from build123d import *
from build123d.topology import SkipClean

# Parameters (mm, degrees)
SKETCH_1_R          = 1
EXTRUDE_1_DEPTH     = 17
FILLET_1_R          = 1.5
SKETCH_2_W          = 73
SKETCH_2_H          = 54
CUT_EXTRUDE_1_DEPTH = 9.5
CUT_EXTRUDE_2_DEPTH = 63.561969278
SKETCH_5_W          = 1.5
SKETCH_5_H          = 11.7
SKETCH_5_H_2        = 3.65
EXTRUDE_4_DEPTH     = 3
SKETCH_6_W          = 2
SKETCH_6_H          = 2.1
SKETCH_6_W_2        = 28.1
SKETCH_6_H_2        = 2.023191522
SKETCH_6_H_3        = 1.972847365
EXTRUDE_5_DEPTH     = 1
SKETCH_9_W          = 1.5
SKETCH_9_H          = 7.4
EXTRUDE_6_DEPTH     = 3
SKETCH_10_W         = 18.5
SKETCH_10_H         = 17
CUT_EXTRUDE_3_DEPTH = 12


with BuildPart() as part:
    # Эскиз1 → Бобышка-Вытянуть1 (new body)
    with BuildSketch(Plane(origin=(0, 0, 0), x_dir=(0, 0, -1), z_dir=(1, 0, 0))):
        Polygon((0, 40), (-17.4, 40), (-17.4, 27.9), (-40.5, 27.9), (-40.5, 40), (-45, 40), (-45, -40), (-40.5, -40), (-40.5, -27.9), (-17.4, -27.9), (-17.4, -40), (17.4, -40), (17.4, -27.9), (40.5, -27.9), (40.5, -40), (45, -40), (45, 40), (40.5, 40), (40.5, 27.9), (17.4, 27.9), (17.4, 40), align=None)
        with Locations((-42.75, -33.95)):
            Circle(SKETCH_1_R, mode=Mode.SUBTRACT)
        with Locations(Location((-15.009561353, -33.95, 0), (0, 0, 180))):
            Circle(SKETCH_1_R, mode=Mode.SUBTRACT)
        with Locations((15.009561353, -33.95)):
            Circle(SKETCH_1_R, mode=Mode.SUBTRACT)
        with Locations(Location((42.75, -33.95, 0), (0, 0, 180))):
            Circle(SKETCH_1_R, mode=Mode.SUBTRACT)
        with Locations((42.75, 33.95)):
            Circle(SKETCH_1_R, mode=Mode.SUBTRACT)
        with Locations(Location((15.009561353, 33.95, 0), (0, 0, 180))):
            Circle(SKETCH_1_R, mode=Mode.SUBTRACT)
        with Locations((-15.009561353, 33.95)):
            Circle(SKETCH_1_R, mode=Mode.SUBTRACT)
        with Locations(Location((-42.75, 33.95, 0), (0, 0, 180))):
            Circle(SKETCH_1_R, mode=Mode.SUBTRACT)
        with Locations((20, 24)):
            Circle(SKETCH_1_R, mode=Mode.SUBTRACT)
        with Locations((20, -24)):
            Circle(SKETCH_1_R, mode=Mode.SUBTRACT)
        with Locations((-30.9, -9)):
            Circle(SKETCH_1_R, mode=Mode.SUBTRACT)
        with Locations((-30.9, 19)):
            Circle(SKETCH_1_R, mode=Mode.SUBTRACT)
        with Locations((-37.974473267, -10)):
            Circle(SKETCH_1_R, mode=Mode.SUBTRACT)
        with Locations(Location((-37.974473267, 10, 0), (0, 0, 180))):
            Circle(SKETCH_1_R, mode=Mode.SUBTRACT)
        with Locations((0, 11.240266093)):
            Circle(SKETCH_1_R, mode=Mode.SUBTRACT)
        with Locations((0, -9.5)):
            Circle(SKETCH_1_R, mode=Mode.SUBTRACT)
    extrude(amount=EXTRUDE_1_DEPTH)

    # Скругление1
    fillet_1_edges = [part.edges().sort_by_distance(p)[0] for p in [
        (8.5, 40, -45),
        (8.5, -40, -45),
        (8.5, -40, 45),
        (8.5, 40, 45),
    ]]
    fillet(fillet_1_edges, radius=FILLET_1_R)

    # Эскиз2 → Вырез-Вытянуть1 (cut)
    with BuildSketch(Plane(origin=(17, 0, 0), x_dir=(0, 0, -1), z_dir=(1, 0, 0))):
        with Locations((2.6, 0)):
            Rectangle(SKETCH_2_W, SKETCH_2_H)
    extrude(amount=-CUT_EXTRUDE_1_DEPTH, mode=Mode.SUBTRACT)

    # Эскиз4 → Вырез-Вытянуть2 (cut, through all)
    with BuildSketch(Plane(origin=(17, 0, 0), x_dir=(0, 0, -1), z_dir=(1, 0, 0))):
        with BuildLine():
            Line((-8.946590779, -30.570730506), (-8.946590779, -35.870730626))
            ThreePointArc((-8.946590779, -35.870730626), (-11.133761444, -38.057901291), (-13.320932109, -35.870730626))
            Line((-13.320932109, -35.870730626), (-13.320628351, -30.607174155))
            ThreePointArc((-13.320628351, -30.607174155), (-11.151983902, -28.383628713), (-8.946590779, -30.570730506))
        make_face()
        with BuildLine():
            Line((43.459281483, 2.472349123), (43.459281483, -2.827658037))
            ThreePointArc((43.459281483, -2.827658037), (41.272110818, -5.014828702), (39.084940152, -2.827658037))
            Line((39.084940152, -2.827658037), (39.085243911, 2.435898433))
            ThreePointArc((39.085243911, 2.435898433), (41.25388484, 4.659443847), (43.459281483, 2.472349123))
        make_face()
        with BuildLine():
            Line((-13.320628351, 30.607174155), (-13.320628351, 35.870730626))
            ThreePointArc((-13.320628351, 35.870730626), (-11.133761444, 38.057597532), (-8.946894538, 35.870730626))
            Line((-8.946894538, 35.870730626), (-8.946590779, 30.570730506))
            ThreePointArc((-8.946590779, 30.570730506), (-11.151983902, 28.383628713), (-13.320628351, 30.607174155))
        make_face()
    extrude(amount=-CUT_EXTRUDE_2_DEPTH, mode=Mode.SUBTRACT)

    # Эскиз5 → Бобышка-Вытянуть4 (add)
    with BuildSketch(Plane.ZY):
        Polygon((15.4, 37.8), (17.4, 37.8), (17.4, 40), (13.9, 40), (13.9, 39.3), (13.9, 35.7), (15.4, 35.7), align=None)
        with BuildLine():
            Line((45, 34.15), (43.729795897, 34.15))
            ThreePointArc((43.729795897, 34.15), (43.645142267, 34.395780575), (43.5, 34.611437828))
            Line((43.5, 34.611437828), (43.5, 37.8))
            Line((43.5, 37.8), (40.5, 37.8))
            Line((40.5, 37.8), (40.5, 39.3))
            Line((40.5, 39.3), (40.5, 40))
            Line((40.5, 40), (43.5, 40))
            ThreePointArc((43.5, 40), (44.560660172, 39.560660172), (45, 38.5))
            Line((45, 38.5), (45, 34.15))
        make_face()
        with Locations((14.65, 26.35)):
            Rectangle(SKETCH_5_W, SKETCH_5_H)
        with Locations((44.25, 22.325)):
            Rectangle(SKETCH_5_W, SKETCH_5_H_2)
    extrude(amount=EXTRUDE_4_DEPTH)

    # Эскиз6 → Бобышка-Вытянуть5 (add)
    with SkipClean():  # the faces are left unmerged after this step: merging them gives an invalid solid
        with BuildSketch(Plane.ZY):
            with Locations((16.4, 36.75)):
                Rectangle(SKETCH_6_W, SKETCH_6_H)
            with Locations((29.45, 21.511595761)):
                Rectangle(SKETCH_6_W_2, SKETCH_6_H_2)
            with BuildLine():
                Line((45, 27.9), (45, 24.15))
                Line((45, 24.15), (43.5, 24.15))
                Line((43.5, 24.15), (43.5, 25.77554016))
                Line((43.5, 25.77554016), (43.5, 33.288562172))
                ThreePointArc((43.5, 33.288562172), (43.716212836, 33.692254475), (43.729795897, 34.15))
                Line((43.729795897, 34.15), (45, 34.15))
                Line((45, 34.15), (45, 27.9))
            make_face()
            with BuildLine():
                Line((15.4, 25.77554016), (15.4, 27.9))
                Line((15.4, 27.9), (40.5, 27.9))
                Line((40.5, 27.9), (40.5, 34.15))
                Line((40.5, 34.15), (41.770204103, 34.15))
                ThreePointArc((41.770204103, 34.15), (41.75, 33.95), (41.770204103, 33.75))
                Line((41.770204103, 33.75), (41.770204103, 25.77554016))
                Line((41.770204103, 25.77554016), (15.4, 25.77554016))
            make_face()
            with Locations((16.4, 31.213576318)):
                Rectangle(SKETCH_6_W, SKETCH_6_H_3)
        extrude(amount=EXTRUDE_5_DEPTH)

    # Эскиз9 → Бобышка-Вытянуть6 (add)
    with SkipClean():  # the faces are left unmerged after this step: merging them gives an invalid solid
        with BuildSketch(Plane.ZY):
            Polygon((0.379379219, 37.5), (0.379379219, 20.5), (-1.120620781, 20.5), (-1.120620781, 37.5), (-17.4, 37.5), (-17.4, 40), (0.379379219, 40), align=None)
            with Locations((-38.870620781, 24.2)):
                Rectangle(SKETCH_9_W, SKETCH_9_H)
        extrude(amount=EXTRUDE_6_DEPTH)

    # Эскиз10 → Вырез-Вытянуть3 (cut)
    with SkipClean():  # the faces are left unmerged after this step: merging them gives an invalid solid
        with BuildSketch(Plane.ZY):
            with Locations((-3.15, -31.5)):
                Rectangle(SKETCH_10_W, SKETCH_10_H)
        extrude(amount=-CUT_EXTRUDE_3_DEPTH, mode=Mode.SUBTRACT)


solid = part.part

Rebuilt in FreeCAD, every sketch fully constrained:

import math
import FreeCAD as App
import Part
import Sketcher

V = App.Vector


def edges_at(feature, points):
    """Names of the edges that pass closest to the given points."""
    edges = feature.Shape.Edges
    near = lambda p: min(range(len(edges)), key=lambda i: edges[i].distToShape(Part.Vertex(*p))[0])
    return sorted({f"Edge{near(p) + 1}" for p in points})

doc = App.newDocument("Part")
body = doc.addObject("PartDesign::Body", "Body")

sketch1 = body.newObject("Sketcher::SketchObject", "Sketch")
sketch1.AttachmentSupport = (doc.getObject("YZ_Plane"), [""])
sketch1.MapMode = "FlatFace"
sketch1.addGeometry(Part.LineSegment(V(40, 17.4, 0), V(27.9, 17.4, 0)), False)
sketch1.addGeometry(Part.LineSegment(V(27.9, 17.4, 0), V(27.9, 40.5, 0)), False)
sketch1.addGeometry(Part.LineSegment(V(27.9, 40.5, 0), V(40, 40.5, 0)), False)
sketch1.addGeometry(Part.LineSegment(V(40, 40.5, 0), V(40, 45, 0)), False)
sketch1.addGeometry(Part.LineSegment(V(40, 45, 0), V(-40, 45, 0)), False)
sketch1.addGeometry(Part.LineSegment(V(-40, 45, 0), V(-40, 40.5, 0)), False)
sketch1.addGeometry(Part.LineSegment(V(-40, 40.5, 0), V(-27.9, 40.5, 0)), False)
sketch1.addGeometry(Part.LineSegment(V(-27.9, 40.5, 0), V(-27.9, 17.4, 0)), False)
sketch1.addGeometry(Part.LineSegment(V(-27.9, 17.4, 0), V(-40, 17.4, 0)), False)
sketch1.addGeometry(Part.LineSegment(V(-40, 17.4, 0), V(-40, -17.4, 0)), False)
sketch1.addGeometry(Part.LineSegment(V(-40, -17.4, 0), V(-27.9, -17.4, 0)), False)
sketch1.addGeometry(Part.LineSegment(V(-27.9, -17.4, 0), V(-27.9, -40.5, 0)), False)
sketch1.addGeometry(Part.LineSegment(V(-27.9, -40.5, 0), V(-40, -40.5, 0)), False)
sketch1.addGeometry(Part.LineSegment(V(-40, -40.5, 0), V(-40, -45, 0)), False)
sketch1.addGeometry(Part.LineSegment(V(-40, -45, 0), V(40, -45, 0)), False)
sketch1.addGeometry(Part.LineSegment(V(40, -45, 0), V(40, -40.5, 0)), False)
sketch1.addGeometry(Part.LineSegment(V(40, -40.5, 0), V(27.9, -40.5, 0)), False)
sketch1.addGeometry(Part.LineSegment(V(27.9, -40.5, 0), V(27.9, -17.4, 0)), False)
sketch1.addGeometry(Part.LineSegment(V(27.9, -17.4, 0), V(40, -17.4, 0)), False)
sketch1.addGeometry(Part.LineSegment(V(40, -17.4, 0), V(40, 17.4, 0)), False)
sketch1.addGeometry(Part.Circle(V(-34, 42.8, 0), V(0, 0, 1), 1), False)
sketch1.addGeometry(Part.Circle(V(-34, 15, 0), V(0, 0, 1), 1), False)
sketch1.addGeometry(Part.Circle(V(-10, 38, 0), V(0, 0, 1), 1), False)
sketch1.addGeometry(Part.Circle(V(-9, 30.9, 0), V(0, 0, 1), 1), False)
sketch1.addGeometry(Part.Circle(V(-34, -15, 0), V(0, 0, 1), 1), False)
sketch1.addGeometry(Part.Circle(V(-24, -20, 0), V(0, 0, 1), 1), False)
sketch1.addGeometry(Part.Circle(V(-34, -42.8, 0), V(0, 0, 1), 1), False)
sketch1.addGeometry(Part.Circle(V(-9.5, 0, 0), V(0, 0, 1), 1), False)
sketch1.addGeometry(Part.Circle(V(10, 38, 0), V(0, 0, 1), 1), False)
sketch1.addGeometry(Part.Circle(V(19, 30.9, 0), V(0, 0, 1), 1), False)
sketch1.addGeometry(Part.Circle(V(34, 42.8, 0), V(0, 0, 1), 1), False)
sketch1.addGeometry(Part.Circle(V(34, 15, 0), V(0, 0, 1), 1), False)
sketch1.addGeometry(Part.Circle(V(11.2, 0, 0), V(0, 0, 1), 1), False)
sketch1.addGeometry(Part.Circle(V(24, -20, 0), V(0, 0, 1), 1), False)
sketch1.addGeometry(Part.Circle(V(34, -15, 0), V(0, 0, 1), 1), False)
sketch1.addGeometry(Part.Circle(V(34, -42.8, 0), V(0, 0, 1), 1), False)
sketch1.addConstraint(Sketcher.Constraint("Coincident", 0, 2, 1, 1))
sketch1.addConstraint(Sketcher.Constraint("Coincident", 1, 2, 2, 1))
sketch1.addConstraint(Sketcher.Constraint("Coincident", 2, 2, 3, 1))
sketch1.addConstraint(Sketcher.Constraint("Coincident", 3, 2, 4, 1))
sketch1.addConstraint(Sketcher.Constraint("Coincident", 4, 2, 5, 1))
sketch1.addConstraint(Sketcher.Constraint("Coincident", 5, 2, 6, 1))
sketch1.addConstraint(Sketcher.Constraint("Coincident", 6, 2, 7, 1))
sketch1.addConstraint(Sketcher.Constraint("Coincident", 7, 2, 8, 1))
sketch1.addConstraint(Sketcher.Constraint("Coincident", 8, 2, 9, 1))
sketch1.addConstraint(Sketcher.Constraint("Coincident", 9, 2, 10, 1))
sketch1.addConstraint(Sketcher.Constraint("Coincident", 10, 2, 11, 1))
sketch1.addConstraint(Sketcher.Constraint("Coincident", 11, 2, 12, 1))
sketch1.addConstraint(Sketcher.Constraint("Coincident", 12, 2, 13, 1))
sketch1.addConstraint(Sketcher.Constraint("Coincident", 13, 2, 14, 1))
sketch1.addConstraint(Sketcher.Constraint("Coincident", 14, 2, 15, 1))
sketch1.addConstraint(Sketcher.Constraint("Coincident", 15, 2, 16, 1))
sketch1.addConstraint(Sketcher.Constraint("Coincident", 16, 2, 17, 1))
sketch1.addConstraint(Sketcher.Constraint("Coincident", 17, 2, 18, 1))
sketch1.addConstraint(Sketcher.Constraint("Coincident", 18, 2, 19, 1))
sketch1.addConstraint(Sketcher.Constraint("Coincident", 19, 2, 0, 1))
sketch1.addConstraint(Sketcher.Constraint("Horizontal", 0))
sketch1.addConstraint(Sketcher.Constraint("Vertical", 1))
sketch1.addConstraint(Sketcher.Constraint("Horizontal", 2))
sketch1.addConstraint(Sketcher.Constraint("Vertical", 3))
sketch1.addConstraint(Sketcher.Constraint("Horizontal", 4))
sketch1.addConstraint(Sketcher.Constraint("Vertical", 5))
sketch1.addConstraint(Sketcher.Constraint("Horizontal", 6))
sketch1.addConstraint(Sketcher.Constraint("Vertical", 7))
sketch1.addConstraint(Sketcher.Constraint("Horizontal", 8))
sketch1.addConstraint(Sketcher.Constraint("Vertical", 9))
sketch1.addConstraint(Sketcher.Constraint("Horizontal", 10))
sketch1.addConstraint(Sketcher.Constraint("Vertical", 11))
sketch1.addConstraint(Sketcher.Constraint("Horizontal", 12))
sketch1.addConstraint(Sketcher.Constraint("Vertical", 13))
sketch1.addConstraint(Sketcher.Constraint("Horizontal", 14))
sketch1.addConstraint(Sketcher.Constraint("Vertical", 15))
sketch1.addConstraint(Sketcher.Constraint("Horizontal", 16))
sketch1.addConstraint(Sketcher.Constraint("Vertical", 17))
sketch1.addConstraint(Sketcher.Constraint("Horizontal", 18))
sketch1.addConstraint(Sketcher.Constraint("Vertical", 19))
sketch1.addConstraint(Sketcher.Constraint("Equal", 20, 21))
sketch1.addConstraint(Sketcher.Constraint("Equal", 21, 22))
sketch1.addConstraint(Sketcher.Constraint("Equal", 22, 23))
sketch1.addConstraint(Sketcher.Constraint("Equal", 23, 24))
sketch1.addConstraint(Sketcher.Constraint("Equal", 24, 25))
sketch1.addConstraint(Sketcher.Constraint("Equal", 25, 26))
sketch1.addConstraint(Sketcher.Constraint("Equal", 26, 27))
sketch1.addConstraint(Sketcher.Constraint("Equal", 27, 28))
sketch1.addConstraint(Sketcher.Constraint("Equal", 28, 29))
sketch1.addConstraint(Sketcher.Constraint("Equal", 29, 30))
sketch1.addConstraint(Sketcher.Constraint("Equal", 30, 31))
sketch1.addConstraint(Sketcher.Constraint("Equal", 31, 32))
sketch1.addConstraint(Sketcher.Constraint("Equal", 32, 33))
sketch1.addConstraint(Sketcher.Constraint("Equal", 33, 34))
sketch1.addConstraint(Sketcher.Constraint("Equal", 34, 35))
sketch1.addConstraint(Sketcher.Constraint("Symmetric", 26, 3, 30, 3, -1, 1))
sketch1.addConstraint(Sketcher.Constraint("Symmetric", 24, 3, 31, 3, -1, 1))
sketch1.addConstraint(Sketcher.Constraint("Symmetric", 21, 3, 34, 3, -1, 1))
sketch1.addConstraint(Sketcher.Constraint("Symmetric", 20, 3, 35, 3, -1, 1))
sketch1.addConstraint(Sketcher.Constraint("Symmetric", 0, 2, 10, 2, -1, 1))
sketch1.addConstraint(Sketcher.Constraint("Symmetric", 2, 2, 12, 2, -1, 1))
sketch1.addConstraint(Sketcher.Constraint("Symmetric", 4, 2, 14, 2, -1, 1))
sketch1.addConstraint(Sketcher.Constraint("Symmetric", 6, 2, 16, 2, -1, 1))
sketch1.addConstraint(Sketcher.Constraint("Symmetric", 8, 2, 18, 2, -1, 1))
sketch1.addConstraint(Sketcher.Constraint("Symmetric", 22, 3, 28, 3, -2))
sketch1.addConstraint(Sketcher.Constraint("Symmetric", 20, 3, 30, 3, -2))
sketch1.addConstraint(Sketcher.Constraint("Symmetric", 21, 3, 31, 3, -2))
sketch1.addConstraint(Sketcher.Constraint("Symmetric", 25, 3, 33, 3, -2))
sketch1.addConstraint(Sketcher.Constraint("Symmetric", 2, 2, 5, 2, -2))
sketch1.addConstraint(Sketcher.Constraint("Symmetric", 0, 2, 7, 2, -2))
sketch1.addConstraint(Sketcher.Constraint("PointOnObject", 27, 3, -1))
sketch1.addConstraint(Sketcher.Constraint("PointOnObject", 32, 3, -1))
sketch1.addConstraint(Sketcher.Constraint("Horizontal", 23, 3, 29, 3))
sketch1.addConstraint(Sketcher.Constraint("Vertical", 20, 3, 21, 3))
sketch1.addConstraint(Sketcher.Constraint("Vertical", 5, 2, 8, 2))
sketch1.addConstraint(Sketcher.Constraint("Diameter", 20, 2.0))
sketch1.addConstraint(Sketcher.Constraint("DistanceX", 4, 2, 4, 1, 80.0))
sketch1.addConstraint(Sketcher.Constraint("DistanceX", 0, 2, 0, 1, 12.1))
sketch1.addConstraint(Sketcher.Constraint("DistanceY", 1, 1, 1, 2, 23.1))
sketch1.addConstraint(Sketcher.Constraint("DistanceY", 3, 1, 3, 2, 4.5))
sketch1.addConstraint(Sketcher.Constraint("DistanceY", 9, 2, 9, 1, 34.8))
sketch1.addConstraint(Sketcher.Constraint("DistanceX", 22, 3, -1, 1, 10.0))
sketch1.addConstraint(Sketcher.Constraint("DistanceX", 23, 3, -1, 1, 9.0))
sketch1.addConstraint(Sketcher.Constraint("DistanceX", 25, 3, -1, 1, 24.0))
sketch1.addConstraint(Sketcher.Constraint("DistanceY", 25, 3, -1, 1, 20.0))
sketch1.addConstraint(Sketcher.Constraint("DistanceX", -1, 1, 29, 3, 19.0))
sketch1.addConstraint(Sketcher.Constraint("DistanceY", -1, 1, 23, 3, 30.9))
sketch1.addConstraint(Sketcher.Constraint("DistanceX", 27, 3, -1, 1, 9.5))
sketch1.addConstraint(Sketcher.Constraint("DistanceX", 20, 3, -1, 1, 33.95))
sketch1.addConstraint(Sketcher.Constraint("DistanceY", -1, 1, 20, 3, 42.75))
sketch1.addConstraint(Sketcher.Constraint("DistanceY", -1, 1, 21, 3, 15.009561))
sketch1.addConstraint(Sketcher.Constraint("DistanceY", 21, 3, 22, 3, 22.964912))
sketch1.addConstraint(Sketcher.Constraint("DistanceX", -1, 1, 32, 3, 11.240266))
pad1 = body.newObject("PartDesign::Pad", "Pad")
pad1.Profile = sketch1
pad1.Length = 17
doc.recompute()

fillet = body.newObject("PartDesign::Fillet", "Fillet")
fillet.Base = (pad1, edges_at(pad1, [
    (8.5, 40, -45),
    (8.5, -40, -45),
    (8.5, -40, 45),
    (8.5, 40, 45),
]))
fillet.Radius = 1.5

sketch2 = body.newObject("Sketcher::SketchObject", "Sketch001")
sketch2.AttachmentSupport = (doc.getObject("YZ_Plane"), [""])
sketch2.MapMode = "FlatFace"
sketch2.AttachmentOffset = App.Placement(V(0, 0, 17), App.Rotation())
sketch2.addGeometry(Part.LineSegment(V(27, 34, 0), V(-27, 34, 0)), False)
sketch2.addGeometry(Part.LineSegment(V(-27, 34, 0), V(-27, -39, 0)), False)
sketch2.addGeometry(Part.LineSegment(V(-27, -39, 0), V(27, -39, 0)), False)
sketch2.addGeometry(Part.LineSegment(V(27, -39, 0), V(27, 34, 0)), False)
sketch2.addConstraint(Sketcher.Constraint("Coincident", 0, 2, 1, 1))
sketch2.addConstraint(Sketcher.Constraint("Coincident", 1, 2, 2, 1))
sketch2.addConstraint(Sketcher.Constraint("Coincident", 2, 2, 3, 1))
sketch2.addConstraint(Sketcher.Constraint("Coincident", 3, 2, 0, 1))
sketch2.addConstraint(Sketcher.Constraint("Horizontal", 0))
sketch2.addConstraint(Sketcher.Constraint("Vertical", 1))
sketch2.addConstraint(Sketcher.Constraint("Horizontal", 2))
sketch2.addConstraint(Sketcher.Constraint("Vertical", 3))
sketch2.addConstraint(Sketcher.Constraint("DistanceX", 0, 2, 0, 1, 54.0))
sketch2.addConstraint(Sketcher.Constraint("DistanceY", 1, 2, 1, 1, 73.0))
sketch2.addConstraint(Sketcher.Constraint("DistanceX", 0, 2, -1, 1, 27.0))
sketch2.addConstraint(Sketcher.Constraint("DistanceY", -1, 1, 0, 2, 33.9))
pocket1 = body.newObject("PartDesign::Pocket", "Pocket")
pocket1.Profile = sketch2
pocket1.Length = 9.5

sketch3 = body.newObject("Sketcher::SketchObject", "Sketch002")
sketch3.AttachmentSupport = (doc.getObject("YZ_Plane"), [""])
sketch3.MapMode = "FlatFace"
sketch3.AttachmentOffset = App.Placement(V(0, 0, 17), App.Rotation())
sketch3.addGeometry(Part.LineSegment(V(-35.9, 8.9, 0), V(-30.6, 8.9, 0)), False)
sketch3.addGeometry(Part.ArcOfCircle(Part.Circle(V(-30.6, 11.1, 0), V(0, 0, 1), 2.2), math.radians(-90), math.radians(91)), False)
sketch3.addGeometry(Part.LineSegment(V(-30.6, 13.3, 0), V(-35.9, 13.3, 0)), False)
sketch3.addGeometry(Part.ArcOfCircle(Part.Circle(V(-35.9, 11.1, 0), V(0, 0, 1), 2.2), math.radians(90), math.radians(270)), False)
sketch3.addGeometry(Part.LineSegment(V(-2.8, -43.5, 0), V(2.5, -43.5, 0)), False)
sketch3.addGeometry(Part.ArcOfCircle(Part.Circle(V(2.5, -41.3, 0), V(0, 0, 1), 2.2), math.radians(-90), math.radians(91)), False)
sketch3.addGeometry(Part.LineSegment(V(2.4, -39.1, 0), V(-2.8, -39.1, 0)), False)
sketch3.addGeometry(Part.ArcOfCircle(Part.Circle(V(-2.8, -41.3, 0), V(0, 0, 1), 2.2), math.radians(90), math.radians(270)), False)
sketch3.addGeometry(Part.LineSegment(V(35.9, 13.3, 0), V(30.6, 13.3, 0)), False)
sketch3.addGeometry(Part.ArcOfCircle(Part.Circle(V(30.6, 11.1, 0), V(0, 0, 1), 2.2), math.radians(89), math.radians(270)), False)
sketch3.addGeometry(Part.LineSegment(V(30.6, 8.9, 0), V(35.9, 8.9, 0)), False)
sketch3.addGeometry(Part.ArcOfCircle(Part.Circle(V(35.9, 11.1, 0), V(0, 0, 1), 2.2), math.radians(-90), math.radians(90)), False)
sketch3.addConstraint(Sketcher.Constraint("Coincident", 0, 2, 1, 1))
sketch3.addConstraint(Sketcher.Constraint("Coincident", 1, 2, 2, 1))
sketch3.addConstraint(Sketcher.Constraint("Coincident", 2, 2, 3, 1))
sketch3.addConstraint(Sketcher.Constraint("Tangent", 3, 2, 0, 1))
sketch3.addConstraint(Sketcher.Constraint("Tangent", 4, 2, 5, 1))
sketch3.addConstraint(Sketcher.Constraint("Coincident", 5, 2, 6, 1))
sketch3.addConstraint(Sketcher.Constraint("Coincident", 6, 2, 7, 1))
sketch3.addConstraint(Sketcher.Constraint("Tangent", 7, 2, 4, 1))
sketch3.addConstraint(Sketcher.Constraint("Coincident", 8, 2, 9, 1))
sketch3.addConstraint(Sketcher.Constraint("Coincident", 9, 2, 10, 1))
sketch3.addConstraint(Sketcher.Constraint("Coincident", 10, 2, 11, 1))
sketch3.addConstraint(Sketcher.Constraint("Tangent", 11, 2, 8, 1))
sketch3.addConstraint(Sketcher.Constraint("Horizontal", 0))
sketch3.addConstraint(Sketcher.Constraint("Horizontal", 4))
sketch3.addConstraint(Sketcher.Constraint("Horizontal", 8))
sketch3.addConstraint(Sketcher.Constraint("Equal", 1, 3))
sketch3.addConstraint(Sketcher.Constraint("Equal", 3, 5))
sketch3.addConstraint(Sketcher.Constraint("Equal", 5, 7))
sketch3.addConstraint(Sketcher.Constraint("Equal", 7, 9))
sketch3.addConstraint(Sketcher.Constraint("Symmetric", 1, 3, 9, 3, -2))
sketch3.addConstraint(Sketcher.Constraint("Symmetric", 3, 3, 11, 3, -2))
sketch3.addConstraint(Sketcher.Constraint("Parallel", 2, 6))
sketch3.addConstraint(Sketcher.Constraint("Horizontal", 1, 2, 8, 2))
sketch3.addConstraint(Sketcher.Constraint("Vertical", 3, 3, 2, 2))
sketch3.addConstraint(Sketcher.Constraint("Vertical", 7, 3, 6, 2))
sketch3.addConstraint(Sketcher.Constraint("Vertical", 11, 3, 10, 2))
sketch3.addConstraint(Sketcher.Constraint("Equal", 2, 6))
sketch3.addConstraint(Sketcher.Constraint("DistanceX", 0, 1, 0, 2, 5.3))
sketch3.addConstraint(Sketcher.Constraint("Distance", 10, 5.3))
sketch3.addConstraint(Sketcher.Constraint("Radius", 1, 2.187171))
sketch3.addConstraint(Sketcher.Constraint("Radius", 11, 2.186867))
sketch3.addConstraint(Sketcher.Constraint("DistanceX", -1, 1, 5, 2, 2.435898))
sketch3.addConstraint(Sketcher.Constraint("DistanceY", 7, 3, 0, 2, 50.218702))
sketch3.addConstraint(Sketcher.Constraint("DistanceX", 4, 1, 4, 2, 5.300007))
sketch3.addConstraint(Sketcher.Constraint("DistanceY", -1, 1, 1, 3, 11.133761))
sketch3.addConstraint(Sketcher.Constraint("DistanceX", 3, 3, -1, 1, 35.870731))
pocket2 = body.newObject("PartDesign::Pocket", "Pocket001")
pocket2.Profile = sketch3
pocket2.Type = "ThroughAll"

sketch4 = body.newObject("Sketcher::SketchObject", "Sketch003")
sketch4.AttachmentSupport = (doc.getObject("YZ_Plane"), [""])
sketch4.MapMode = "FlatFace"
sketch4.addGeometry(Part.LineSegment(V(37.8, 15.4, 0), V(37.8, 17.4, 0)), False)
sketch4.addGeometry(Part.LineSegment(V(37.8, 17.4, 0), V(40, 17.4, 0)), False)
sketch4.addGeometry(Part.LineSegment(V(40, 17.4, 0), V(40, 13.9, 0)), False)
sketch4.addGeometry(Part.LineSegment(V(40, 13.9, 0), V(35.7, 13.9, 0)), False)
sketch4.addGeometry(Part.LineSegment(V(35.7, 13.9, 0), V(35.7, 15.4, 0)), False)
sketch4.addGeometry(Part.LineSegment(V(35.7, 15.4, 0), V(37.8, 15.4, 0)), False)
sketch4.addGeometry(Part.LineSegment(V(34.1, 43.7, 0), V(34.1, 45, 0)), False)
sketch4.addGeometry(Part.LineSegment(V(34.1, 45, 0), V(38.5, 45, 0)), False)
sketch4.addGeometry(Part.ArcOfCircle(Part.Circle(V(38.5, 43.5, 0), V(0, 0, 1), 1.5), math.radians(0), math.radians(90)), False)
sketch4.addGeometry(Part.LineSegment(V(40, 43.5, 0), V(40, 40.5, 0)), False)
sketch4.addGeometry(Part.LineSegment(V(40, 40.5, 0), V(37.8, 40.5, 0)), False)
sketch4.addGeometry(Part.LineSegment(V(37.8, 40.5, 0), V(37.8, 43.5, 0)), False)
sketch4.addGeometry(Part.LineSegment(V(37.8, 43.5, 0), V(34.6, 43.5, 0)), False)
sketch4.addGeometry(Part.ArcOfCircle(Part.Circle(V(33.9, 42.7, 0), V(0, 0, 1), 1), math.radians(49), math.radians(78)), False)
sketch4.addGeometry(Part.LineSegment(V(32.2, 13.9, 0), V(20.5, 13.9, 0)), False)
sketch4.addGeometry(Part.LineSegment(V(20.5, 13.9, 0), V(20.5, 15.4, 0)), False)
sketch4.addGeometry(Part.LineSegment(V(20.5, 15.4, 0), V(32.2, 15.4, 0)), False)
sketch4.addGeometry(Part.LineSegment(V(32.2, 15.4, 0), V(32.2, 13.9, 0)), False)
sketch4.addGeometry(Part.LineSegment(V(24.1, 43.5, 0), V(20.5, 43.5, 0)), False)
sketch4.addGeometry(Part.LineSegment(V(20.5, 43.5, 0), V(20.5, 45, 0)), False)
sketch4.addGeometry(Part.LineSegment(V(20.5, 45, 0), V(24.1, 45, 0)), False)
sketch4.addGeometry(Part.LineSegment(V(24.1, 45, 0), V(24.1, 43.5, 0)), False)
sketch4.addConstraint(Sketcher.Constraint("Coincident", 0, 2, 1, 1))
sketch4.addConstraint(Sketcher.Constraint("Coincident", 1, 2, 2, 1))
sketch4.addConstraint(Sketcher.Constraint("Coincident", 2, 2, 3, 1))
sketch4.addConstraint(Sketcher.Constraint("Coincident", 3, 2, 4, 1))
sketch4.addConstraint(Sketcher.Constraint("Coincident", 4, 2, 5, 1))
sketch4.addConstraint(Sketcher.Constraint("Coincident", 5, 2, 0, 1))
sketch4.addConstraint(Sketcher.Constraint("Coincident", 6, 2, 7, 1))
sketch4.addConstraint(Sketcher.Constraint("Tangent", 7, 2, 8, 2))
sketch4.addConstraint(Sketcher.Constraint("Tangent", 8, 1, 9, 1))
sketch4.addConstraint(Sketcher.Constraint("Coincident", 9, 2, 10, 1))
sketch4.addConstraint(Sketcher.Constraint("Coincident", 10, 2, 11, 1))
sketch4.addConstraint(Sketcher.Constraint("Coincident", 11, 2, 12, 1))
sketch4.addConstraint(Sketcher.Constraint("Coincident", 12, 2, 13, 1))
sketch4.addConstraint(Sketcher.Constraint("Coincident", 13, 2, 6, 1))
sketch4.addConstraint(Sketcher.Constraint("Coincident", 14, 2, 15, 1))
sketch4.addConstraint(Sketcher.Constraint("Coincident", 15, 2, 16, 1))
sketch4.addConstraint(Sketcher.Constraint("Coincident", 16, 2, 17, 1))
sketch4.addConstraint(Sketcher.Constraint("Coincident", 17, 2, 14, 1))
sketch4.addConstraint(Sketcher.Constraint("Coincident", 18, 2, 19, 1))
sketch4.addConstraint(Sketcher.Constraint("Coincident", 19, 2, 20, 1))
sketch4.addConstraint(Sketcher.Constraint("Coincident", 20, 2, 21, 1))
sketch4.addConstraint(Sketcher.Constraint("Coincident", 21, 2, 18, 1))
sketch4.addConstraint(Sketcher.Constraint("Vertical", 0))
sketch4.addConstraint(Sketcher.Constraint("Horizontal", 1))
sketch4.addConstraint(Sketcher.Constraint("Vertical", 2))
sketch4.addConstraint(Sketcher.Constraint("Horizontal", 3))
sketch4.addConstraint(Sketcher.Constraint("Vertical", 4))
sketch4.addConstraint(Sketcher.Constraint("Horizontal", 5))
sketch4.addConstraint(Sketcher.Constraint("Vertical", 6))
sketch4.addConstraint(Sketcher.Constraint("Horizontal", 7))
sketch4.addConstraint(Sketcher.Constraint("Vertical", 9))
sketch4.addConstraint(Sketcher.Constraint("Horizontal", 10))
sketch4.addConstraint(Sketcher.Constraint("Vertical", 11))
sketch4.addConstraint(Sketcher.Constraint("Horizontal", 12))
sketch4.addConstraint(Sketcher.Constraint("Horizontal", 14))
sketch4.addConstraint(Sketcher.Constraint("Vertical", 15))
sketch4.addConstraint(Sketcher.Constraint("Horizontal", 16))
sketch4.addConstraint(Sketcher.Constraint("Vertical", 17))
sketch4.addConstraint(Sketcher.Constraint("Horizontal", 18))
sketch4.addConstraint(Sketcher.Constraint("Vertical", 19))
sketch4.addConstraint(Sketcher.Constraint("Horizontal", 20))
sketch4.addConstraint(Sketcher.Constraint("Vertical", 21))
sketch4.addConstraint(Sketcher.Constraint("Horizontal", 8, 1, 11, 2))
sketch4.addConstraint(Sketcher.Constraint("Horizontal", 3, 2, 14, 2))
sketch4.addConstraint(Sketcher.Constraint("Horizontal", 5, 2, 15, 2))
sketch4.addConstraint(Sketcher.Constraint("Horizontal", 12, 2, 18, 2))
sketch4.addConstraint(Sketcher.Constraint("Horizontal", 7, 2, 19, 2))
sketch4.addConstraint(Sketcher.Constraint("Vertical", 2, 2, 8, 1))
sketch4.addConstraint(Sketcher.Constraint("Vertical", 5, 2, 10, 2))
sketch4.addConstraint(Sketcher.Constraint("Vertical", 15, 2, 18, 2))
sketch4.addConstraint(Sketcher.Constraint("Equal", 17, 19))
sketch4.addConstraint(Sketcher.Constraint("Radius", 13, 1.0))
sketch4.addConstraint(Sketcher.Constraint("Radius", 8, 1.5))
sketch4.addConstraint(Sketcher.Constraint("DistanceY", 0, 1, 0, 2, 2.0))
sketch4.addConstraint(Sketcher.Constraint("DistanceY", 9, 2, 9, 1, 3.0))
sketch4.addConstraint(Sketcher.Constraint("DistanceX", 1, 1, 1, 2, 2.2))
sketch4.addConstraint(Sketcher.Constraint("DistanceX", 3, 2, 3, 1, 4.3))
sketch4.addConstraint(Sketcher.Constraint("DistanceX", 14, 2, 14, 1, 11.7))
sketch4.addConstraint(Sketcher.Constraint("DistanceX", -1, 1, 1, 2, 40.0))
sketch4.addConstraint(Sketcher.Constraint("DistanceY", -1, 1, 6, 2, 45.0))
sketch4.addConstraint(Sketcher.Constraint("DistanceX", 20, 2, 6, 2, 10.0))
sketch4.addConstraint(Sketcher.Constraint("DistanceX", 7, 1, 7, 2, 4.35))
sketch4.addConstraint(Sketcher.Constraint("DistanceX", 18, 2, 18, 1, 3.65))
sketch4.addConstraint(Sketcher.Constraint("DistanceY", -1, 1, 0, 2, 17.4))
sketch4.addConstraint(Sketcher.Constraint("DistanceX", 13, 3, 6, 2, 0.2))
sketch4.addConstraint(Sketcher.Constraint("DistanceY", -1, 1, 13, 3, 42.75))
pad2 = body.newObject("PartDesign::Pad", "Pad001")
pad2.Profile = sketch4
pad2.Length = 3
pad2.Reversed = True

sketch5 = body.newObject("Sketcher::SketchObject", "Sketch004")
sketch5.AttachmentSupport = (doc.getObject("YZ_Plane"), [""])
sketch5.MapMode = "FlatFace"
sketch5.addGeometry(Part.LineSegment(V(37.8, 15.4, 0), V(35.7, 15.4, 0)), False)
sketch5.addGeometry(Part.LineSegment(V(35.7, 15.4, 0), V(35.7, 17.4, 0)), False)
sketch5.addGeometry(Part.LineSegment(V(35.7, 17.4, 0), V(37.8, 17.4, 0)), False)
sketch5.addGeometry(Part.LineSegment(V(37.8, 17.4, 0), V(37.8, 15.4, 0)), False)
sketch5.addGeometry(Part.LineSegment(V(22.52, 15.4, 0), V(20.5, 15.4, 0)), False)
sketch5.addGeometry(Part.LineSegment(V(20.5, 15.4, 0), V(20.5, 43.5, 0)), False)
sketch5.addGeometry(Part.LineSegment(V(20.5, 43.5, 0), V(22.52, 43.5, 0)), False)
sketch5.addGeometry(Part.LineSegment(V(22.52, 43.5, 0), V(22.52, 15.4, 0)), False)
sketch5.addGeometry(Part.LineSegment(V(24.15, 45, 0), V(27.9, 45, 0)), False)
sketch5.addGeometry(Part.LineSegment(V(27.9, 45, 0), V(34.15, 45, 0)), False)
sketch5.addGeometry(Part.LineSegment(V(34.15, 45, 0), V(34.15, 43.73, 0)), False)
sketch5.addGeometry(Part.ArcOfCircle(Part.Circle(V(33.95, 42.75, 0), V(0, 0, 1), 1), math.radians(78), math.radians(131)), False)
sketch5.addGeometry(Part.LineSegment(V(33.29, 43.5, 0), V(25.78, 43.5, 0)), False)
sketch5.addGeometry(Part.LineSegment(V(25.78, 43.5, 0), V(24.15, 43.5, 0)), False)
sketch5.addGeometry(Part.LineSegment(V(24.15, 43.5, 0), V(24.15, 45, 0)), False)
sketch5.addGeometry(Part.LineSegment(V(27.9, 15.4, 0), V(25.78, 15.4, 0)), False)
sketch5.addGeometry(Part.LineSegment(V(25.78, 15.4, 0), V(25.78, 41.77, 0)), False)
sketch5.addGeometry(Part.LineSegment(V(25.78, 41.77, 0), V(33.75, 41.77, 0)), False)
sketch5.addGeometry(Part.ArcOfCircle(Part.Circle(V(33.95, 42.75, 0), V(0, 0, 1), 1), math.radians(-102), math.radians(-78)), False)
sketch5.addGeometry(Part.LineSegment(V(34.15, 41.77, 0), V(34.15, 40.5, 0)), False)
sketch5.addGeometry(Part.LineSegment(V(34.15, 40.5, 0), V(27.9, 40.5, 0)), False)
sketch5.addGeometry(Part.LineSegment(V(27.9, 40.5, 0), V(27.9, 15.4, 0)), False)
sketch5.addGeometry(Part.LineSegment(V(32.2, 15.4, 0), V(30.23, 15.4, 0)), False)
sketch5.addGeometry(Part.LineSegment(V(30.23, 15.4, 0), V(30.23, 17.4, 0)), False)
sketch5.addGeometry(Part.LineSegment(V(30.23, 17.4, 0), V(32.2, 17.4, 0)), False)
sketch5.addGeometry(Part.LineSegment(V(32.2, 17.4, 0), V(32.2, 15.4, 0)), False)
sketch5.addConstraint(Sketcher.Constraint("Coincident", 0, 2, 1, 1))
sketch5.addConstraint(Sketcher.Constraint("Coincident", 1, 2, 2, 1))
sketch5.addConstraint(Sketcher.Constraint("Coincident", 2, 2, 3, 1))
sketch5.addConstraint(Sketcher.Constraint("Coincident", 3, 2, 0, 1))
sketch5.addConstraint(Sketcher.Constraint("Coincident", 4, 2, 5, 1))
sketch5.addConstraint(Sketcher.Constraint("Coincident", 5, 2, 6, 1))
sketch5.addConstraint(Sketcher.Constraint("Coincident", 6, 2, 7, 1))
sketch5.addConstraint(Sketcher.Constraint("Coincident", 7, 2, 4, 1))
sketch5.addConstraint(Sketcher.Constraint("Coincident", 8, 2, 9, 1))
sketch5.addConstraint(Sketcher.Constraint("Coincident", 9, 2, 10, 1))
sketch5.addConstraint(Sketcher.Constraint("Coincident", 10, 2, 11, 1))
sketch5.addConstraint(Sketcher.Constraint("Coincident", 11, 2, 12, 1))
sketch5.addConstraint(Sketcher.Constraint("Coincident", 12, 2, 13, 1))
sketch5.addConstraint(Sketcher.Constraint("Coincident", 13, 2, 14, 1))
sketch5.addConstraint(Sketcher.Constraint("Coincident", 14, 2, 8, 1))
sketch5.addConstraint(Sketcher.Constraint("Coincident", 15, 2, 16, 1))
sketch5.addConstraint(Sketcher.Constraint("Coincident", 16, 2, 17, 1))
sketch5.addConstraint(Sketcher.Constraint("Coincident", 17, 2, 18, 1))
sketch5.addConstraint(Sketcher.Constraint("Coincident", 18, 2, 19, 1))
sketch5.addConstraint(Sketcher.Constraint("Coincident", 19, 2, 20, 1))
sketch5.addConstraint(Sketcher.Constraint("Coincident", 20, 2, 21, 1))
sketch5.addConstraint(Sketcher.Constraint("Coincident", 21, 2, 15, 1))
sketch5.addConstraint(Sketcher.Constraint("Coincident", 22, 2, 23, 1))
sketch5.addConstraint(Sketcher.Constraint("Coincident", 23, 2, 24, 1))
sketch5.addConstraint(Sketcher.Constraint("Coincident", 24, 2, 25, 1))
sketch5.addConstraint(Sketcher.Constraint("Coincident", 25, 2, 22, 1))
sketch5.addConstraint(Sketcher.Constraint("Horizontal", 0))
sketch5.addConstraint(Sketcher.Constraint("Vertical", 1))
sketch5.addConstraint(Sketcher.Constraint("Horizontal", 2))
sketch5.addConstraint(Sketcher.Constraint("Vertical", 3))
sketch5.addConstraint(Sketcher.Constraint("Horizontal", 4))
sketch5.addConstraint(Sketcher.Constraint("Vertical", 5))
sketch5.addConstraint(Sketcher.Constraint("Horizontal", 6))
sketch5.addConstraint(Sketcher.Constraint("Vertical", 7))
sketch5.addConstraint(Sketcher.Constraint("Horizontal", 8))
sketch5.addConstraint(Sketcher.Constraint("Horizontal", 9))
sketch5.addConstraint(Sketcher.Constraint("Vertical", 10))
sketch5.addConstraint(Sketcher.Constraint("Horizontal", 12))
sketch5.addConstraint(Sketcher.Constraint("Horizontal", 13))
sketch5.addConstraint(Sketcher.Constraint("Vertical", 14))
sketch5.addConstraint(Sketcher.Constraint("Horizontal", 15))
sketch5.addConstraint(Sketcher.Constraint("Vertical", 16))
sketch5.addConstraint(Sketcher.Constraint("Horizontal", 17))
sketch5.addConstraint(Sketcher.Constraint("Vertical", 19))
sketch5.addConstraint(Sketcher.Constraint("Horizontal", 20))
sketch5.addConstraint(Sketcher.Constraint("Vertical", 21))
sketch5.addConstraint(Sketcher.Constraint("Horizontal", 22))
sketch5.addConstraint(Sketcher.Constraint("Vertical", 23))
sketch5.addConstraint(Sketcher.Constraint("Horizontal", 24))
sketch5.addConstraint(Sketcher.Constraint("Vertical", 25))
sketch5.addConstraint(Sketcher.Constraint("Coincident", 18, 3, 11, 3))
sketch5.addConstraint(Sketcher.Constraint("Equal", 11, 18))
sketch5.addConstraint(Sketcher.Constraint("Horizontal", 3, 2, 4, 2))
sketch5.addConstraint(Sketcher.Constraint("Horizontal", 6, 2, 11, 2))
sketch5.addConstraint(Sketcher.Constraint("Horizontal", 7, 2, 15, 2))
sketch5.addConstraint(Sketcher.Constraint("Horizontal", 17, 2, 18, 2))
sketch5.addConstraint(Sketcher.Constraint("Horizontal", 21, 2, 22, 2))
sketch5.addConstraint(Sketcher.Constraint("Horizontal", 2, 2, 23, 2))
sketch5.addConstraint(Sketcher.Constraint("Vertical", 12, 2, 15, 2))
sketch5.addConstraint(Sketcher.Constraint("Vertical", 10, 2, 18, 2))
sketch5.addConstraint(Sketcher.Constraint("Vertical", 8, 2, 20, 2))
sketch5.addConstraint(Sketcher.Constraint("Equal", 10, 19))
sketch5.addConstraint(Sketcher.Constraint("Radius", 11, 1.0))
sketch5.addConstraint(Sketcher.Constraint("DistanceY", 1, 1, 1, 2, 2.0))
sketch5.addConstraint(Sketcher.Constraint("DistanceX", 0, 2, 0, 1, 2.1))
sketch5.addConstraint(Sketcher.Constraint("DistanceY", 5, 1, 5, 2, 28.1))
sketch5.addConstraint(Sketcher.Constraint("DistanceY", 14, 1, 14, 2, 1.5))
sketch5.addConstraint(Sketcher.Constraint("DistanceY", 21, 2, 21, 1, 25.1))
sketch5.addConstraint(Sketcher.Constraint("DistanceY", -1, 1, 8, 2, 45.0))
sketch5.addConstraint(Sketcher.Constraint("DistanceX", 8, 1, 8, 2, 3.75))
sketch5.addConstraint(Sketcher.Constraint("DistanceX", 9, 1, 9, 2, 6.25))
sketch5.addConstraint(Sketcher.Constraint("DistanceX", -1, 1, 0, 2, 35.7))
sketch5.addConstraint(Sketcher.Constraint("DistanceX", -1, 1, 4, 2, 20.5))
sketch5.addConstraint(Sketcher.Constraint("DistanceX", -1, 1, 8, 2, 27.9))
sketch5.addConstraint(Sketcher.Constraint("DistanceX", -1, 1, 24, 2, 32.2))
sketch5.addConstraint(Sketcher.Constraint("DistanceX", 11, 3, 9, 2, 0.2))
sketch5.addConstraint(Sketcher.Constraint("DistanceX", 4, 2, 4, 1, 2.023192))
sketch5.addConstraint(Sketcher.Constraint("DistanceX", 13, 2, 13, 1, 1.62554))
sketch5.addConstraint(Sketcher.Constraint("DistanceX", 22, 2, 22, 1, 1.972847))
pad3 = body.newObject("PartDesign::Pad", "Pad002")
pad3.Profile = sketch5
pad3.Length = 1
pad3.Reversed = True

sketch6 = body.newObject("Sketcher::SketchObject", "Sketch005")
sketch6.AttachmentSupport = (doc.getObject("YZ_Plane"), [""])
sketch6.MapMode = "FlatFace"
sketch6.addGeometry(Part.LineSegment(V(20.5, 0.4, 0), V(40, 0.4, 0)), False)
sketch6.addGeometry(Part.LineSegment(V(40, 0.4, 0), V(40, -17.4, 0)), False)
sketch6.addGeometry(Part.LineSegment(V(40, -17.4, 0), V(37.5, -17.4, 0)), False)
sketch6.addGeometry(Part.LineSegment(V(37.5, -17.4, 0), V(37.5, -1.1, 0)), False)
sketch6.addGeometry(Part.LineSegment(V(37.5, -1.1, 0), V(20.5, -1.1, 0)), False)
sketch6.addGeometry(Part.LineSegment(V(20.5, -1.1, 0), V(20.5, 0.4, 0)), False)
sketch6.addGeometry(Part.LineSegment(V(27.9, -39.6, 0), V(20.5, -39.6, 0)), False)
sketch6.addGeometry(Part.LineSegment(V(20.5, -39.6, 0), V(20.5, -38.1, 0)), False)
sketch6.addGeometry(Part.LineSegment(V(20.5, -38.1, 0), V(27.9, -38.1, 0)), False)
sketch6.addGeometry(Part.LineSegment(V(27.9, -38.1, 0), V(27.9, -39.6, 0)), False)
sketch6.addConstraint(Sketcher.Constraint("Coincident", 0, 2, 1, 1))
sketch6.addConstraint(Sketcher.Constraint("Coincident", 1, 2, 2, 1))
sketch6.addConstraint(Sketcher.Constraint("Coincident", 2, 2, 3, 1))
sketch6.addConstraint(Sketcher.Constraint("Coincident", 3, 2, 4, 1))
sketch6.addConstraint(Sketcher.Constraint("Coincident", 4, 2, 5, 1))
sketch6.addConstraint(Sketcher.Constraint("Coincident", 5, 2, 0, 1))
sketch6.addConstraint(Sketcher.Constraint("Coincident", 6, 2, 7, 1))
sketch6.addConstraint(Sketcher.Constraint("Coincident", 7, 2, 8, 1))
sketch6.addConstraint(Sketcher.Constraint("Coincident", 8, 2, 9, 1))
sketch6.addConstraint(Sketcher.Constraint("Coincident", 9, 2, 6, 1))
sketch6.addConstraint(Sketcher.Constraint("Horizontal", 0))
sketch6.addConstraint(Sketcher.Constraint("Vertical", 1))
sketch6.addConstraint(Sketcher.Constraint("Horizontal", 2))
sketch6.addConstraint(Sketcher.Constraint("Vertical", 3))
sketch6.addConstraint(Sketcher.Constraint("Horizontal", 4))
sketch6.addConstraint(Sketcher.Constraint("Vertical", 5))
sketch6.addConstraint(Sketcher.Constraint("Horizontal", 6))
sketch6.addConstraint(Sketcher.Constraint("Vertical", 7))
sketch6.addConstraint(Sketcher.Constraint("Horizontal", 8))
sketch6.addConstraint(Sketcher.Constraint("Vertical", 9))
sketch6.addConstraint(Sketcher.Constraint("Vertical", 5, 2, 6, 2))
sketch6.addConstraint(Sketcher.Constraint("Equal", 5, 7))
sketch6.addConstraint(Sketcher.Constraint("DistanceX", 4, 2, 4, 1, 17.0))
sketch6.addConstraint(Sketcher.Constraint("DistanceX", 0, 1, 0, 2, 19.5))
sketch6.addConstraint(Sketcher.Constraint("DistanceX", 6, 2, 6, 1, 7.4))
sketch6.addConstraint(Sketcher.Constraint("DistanceY", 5, 1, 5, 2, 1.5))
sketch6.addConstraint(Sketcher.Constraint("DistanceX", -1, 1, 0, 2, 40.0))
sketch6.addConstraint(Sketcher.Constraint("DistanceY", 6, 2, 5, 2, 40.0))
sketch6.addConstraint(Sketcher.Constraint("DistanceY", 1, 2, -1, 1, 17.4))
sketch6.addConstraint(Sketcher.Constraint("DistanceY", 1, 2, 1, 1, 17.779379))
pad4 = body.newObject("PartDesign::Pad", "Pad003")
pad4.Profile = sketch6
pad4.Length = 3
pad4.Reversed = True

sketch7 = body.newObject("Sketcher::SketchObject", "Sketch006")
sketch7.AttachmentSupport = (doc.getObject("YZ_Plane"), [""])
sketch7.MapMode = "FlatFace"
sketch7.addGeometry(Part.LineSegment(V(-23, -12, 0), V(-40, -12, 0)), False)
sketch7.addGeometry(Part.LineSegment(V(-40, -12, 0), V(-40, 6, 0)), False)
sketch7.addGeometry(Part.LineSegment(V(-40, 6, 0), V(-23, 6, 0)), False)
sketch7.addGeometry(Part.LineSegment(V(-23, 6, 0), V(-23, -12, 0)), False)
sketch7.addConstraint(Sketcher.Constraint("Coincident", 0, 2, 1, 1))
sketch7.addConstraint(Sketcher.Constraint("Coincident", 1, 2, 2, 1))
sketch7.addConstraint(Sketcher.Constraint("Coincident", 2, 2, 3, 1))
sketch7.addConstraint(Sketcher.Constraint("Coincident", 3, 2, 0, 1))
sketch7.addConstraint(Sketcher.Constraint("Horizontal", 0))
sketch7.addConstraint(Sketcher.Constraint("Vertical", 1))
sketch7.addConstraint(Sketcher.Constraint("Horizontal", 2))
sketch7.addConstraint(Sketcher.Constraint("Vertical", 3))
sketch7.addConstraint(Sketcher.Constraint("DistanceX", 0, 2, 0, 1, 17.0))
sketch7.addConstraint(Sketcher.Constraint("DistanceY", 1, 1, 1, 2, 18.5))
sketch7.addConstraint(Sketcher.Constraint("DistanceX", 0, 2, -1, 1, 40.0))
sketch7.addConstraint(Sketcher.Constraint("DistanceY", 0, 2, -1, 1, 12.4))
pocket3 = body.newObject("PartDesign::Pocket", "Pocket002")
pocket3.Profile = sketch7
pocket3.Length = 12
pocket3.Reversed = True

doc.recompute()
